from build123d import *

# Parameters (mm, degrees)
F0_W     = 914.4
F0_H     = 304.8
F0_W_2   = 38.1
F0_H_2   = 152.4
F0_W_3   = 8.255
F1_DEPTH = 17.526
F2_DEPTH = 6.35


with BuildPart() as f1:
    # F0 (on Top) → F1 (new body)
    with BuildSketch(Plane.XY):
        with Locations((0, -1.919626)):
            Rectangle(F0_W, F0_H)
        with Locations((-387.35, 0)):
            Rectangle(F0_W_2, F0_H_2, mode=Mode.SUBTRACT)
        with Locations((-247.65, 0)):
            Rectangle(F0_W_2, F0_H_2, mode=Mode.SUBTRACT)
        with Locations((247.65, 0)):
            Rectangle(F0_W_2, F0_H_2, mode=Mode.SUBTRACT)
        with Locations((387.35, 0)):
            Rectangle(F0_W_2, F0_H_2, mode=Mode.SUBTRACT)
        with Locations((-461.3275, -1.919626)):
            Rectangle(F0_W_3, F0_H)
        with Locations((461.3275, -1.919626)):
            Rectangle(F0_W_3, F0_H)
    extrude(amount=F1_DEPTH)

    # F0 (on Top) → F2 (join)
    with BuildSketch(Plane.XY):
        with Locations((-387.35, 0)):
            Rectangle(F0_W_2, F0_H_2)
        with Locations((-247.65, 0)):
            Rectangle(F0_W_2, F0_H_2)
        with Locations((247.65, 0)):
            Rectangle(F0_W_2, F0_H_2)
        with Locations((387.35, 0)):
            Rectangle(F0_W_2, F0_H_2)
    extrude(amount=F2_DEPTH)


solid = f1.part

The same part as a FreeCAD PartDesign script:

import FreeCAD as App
import Part
import Sketcher
Q = App.Units.Quantity


def add_polygon(sketch, points):
    """Adds a closed chain of lines whose ends are joined by coincident constraints."""
    first, n = sketch.GeometryCount, len(points)
    for a, b in zip(points, points[1:] + points[:1]):
        sketch.addGeometry(Part.LineSegment(App.Vector(*a, 0), App.Vector(*b, 0)), False)
    for i in range(n):
        sketch.addConstraint(Sketcher.Constraint("Coincident", first + i, 2, first + (i + 1) % n, 1))

doc = App.newDocument("Part")
body = doc.addObject("PartDesign::Body", "Body")

# Sketch on XY plane
sketch1 = doc.addObject("Sketcher::SketchObject", "Sketch")
body.addObject(sketch1)
sketch1.AttachmentSupport = (doc.XY_Plane, [""])
sketch1.MapMode = "FlatFace"
add_polygon(sketch1, [(-465, 150), (-465, -154), (465, -154), (465, 150)])  # lines 0-3
add_polygon(sketch1, [(-368, -76), (-406, -76), (-406, 76), (-368, 76)])  # lines 4-7
add_polygon(sketch1, [(-229, -76), (-267, -76), (-267, 76), (-229, 76)])  # lines 8-11
add_polygon(sketch1, [(267, -76), (229, -76), (229, 76), (267, 76)])  # lines 12-15
add_polygon(sketch1, [(406, -76), (368, -76), (368, 76), (406, 76)])  # lines 16-19
sketch1.addConstraint(Sketcher.Constraint("Vertical", 0))
sketch1.addConstraint(Sketcher.Constraint("Horizontal", 1))
sketch1.addConstraint(Sketcher.Constraint("Vertical", 2))
sketch1.addConstraint(Sketcher.Constraint("Horizontal", 3))
sketch1.addConstraint(Sketcher.Constraint("Horizontal", 4))
sketch1.addConstraint(Sketcher.Constraint("Vertical", 5))
sketch1.addConstraint(Sketcher.Constraint("Horizontal", 6))
sketch1.addConstraint(Sketcher.Constraint("Vertical", 7))
sketch1.addConstraint(Sketcher.Constraint("Horizontal", 8))
sketch1.addConstraint(Sketcher.Constraint("Vertical", 9))
sketch1.addConstraint(Sketcher.Constraint("Horizontal", 10))
sketch1.addConstraint(Sketcher.Constraint("Vertical", 11))
sketch1.addConstraint(Sketcher.Constraint("Horizontal", 12))
sketch1.addConstraint(Sketcher.Constraint("Vertical", 13))
sketch1.addConstraint(Sketcher.Constraint("Horizontal", 14))
sketch1.addConstraint(Sketcher.Constraint("Vertical", 15))
sketch1.addConstraint(Sketcher.Constraint("Horizontal", 16))
sketch1.addConstraint(Sketcher.Constraint("Vertical", 17))
sketch1.addConstraint(Sketcher.Constraint("Horizontal", 18))
sketch1.addConstraint(Sketcher.Constraint("Vertical", 19))
sketch1.addConstraint(Sketcher.Constraint("Symmetric", 10, 2, 12, 2, -1, 1))
sketch1.addConstraint(Sketcher.Constraint("Symmetric", 8, 2, 14, 2, -1, 1))
sketch1.addConstraint(Sketcher.Constraint("Symmetric", 6, 2, 16, 2, -1, 1))
sketch1.addConstraint(Sketcher.Constraint("Symmetric", 4, 2, 18, 2, -1, 1))
sketch1.addConstraint(Sketcher.Constraint("Horizontal", 7, 2, 8, 2))
sketch1.addConstraint(Sketcher.Constraint("Horizontal", 6, 2, 9, 2))
sketch1.addConstraint(Sketcher.Constraint("Horizontal", 11, 2, 12, 2))
sketch1.addConstraint(Sketcher.Constraint("Equal", 6, 8))
sketch1.addConstraint(Sketcher.Constraint("DistanceY", 0, 2, 0, 1, Q("12 in")))
sketch1.addConstraint(Sketcher.Constraint("DistanceY", 5, 1, 5, 2, Q("6 in")))
sketch1.addConstraint(Sketcher.Constraint("DistanceX", 4, 2, 4, 1, Q("1.5 in")))
sketch1.addConstraint(Sketcher.Constraint("DistanceX", 4, 2, -1, 1, Q("16 in")))
sketch1.addConstraint(Sketcher.Constraint("DistanceX", 10, 2, -1, 1, Q("9 in")))
sketch1.addConstraint(Sketcher.Constraint("DistanceX", 1, 1, 1, 2, Q("36.65 in")))
sketch1.addConstraint(Sketcher.Constraint("DistanceX", 0, 2, -1, 1, Q("18.325 in")))
sketch1.addConstraint(Sketcher.Constraint("DistanceY", 0, 2, -1, 1, 154.319626))
pad1 = doc.addObject("PartDesign::Pad", "Pad")
body.addObject(pad1)
pad1.Profile = sketch1
pad1.Length = Q("0.69 in")

# Sketch on XY plane
sketch2 = doc.addObject("Sketcher::SketchObject", "Sketch001")
body.addObject(sketch2)
sketch2.AttachmentSupport = (doc.XY_Plane, [""])
sketch2.MapMode = "FlatFace"
add_polygon(sketch2, [(-406, 76), (-406, -76), (-368, -76), (-368, 76)])  # lines 0-3
add_polygon(sketch2, [(-267, 76), (-267, -76), (-229, -76), (-229, 76)])  # lines 4-7
add_polygon(sketch2, [(229, 76), (229, -76), (267, -76), (267, 76)])  # lines 8-11
add_polygon(sketch2, [(368, 76), (368, -76), (406, -76), (406, 76)])  # lines 12-15
sketch2.addConstraint(Sketcher.Constraint("Vertical", 0))
sketch2.addConstraint(Sketcher.Constraint("Horizontal", 1))
sketch2.addConstraint(Sketcher.Constraint("Vertical", 2))
sketch2.addConstraint(Sketcher.Constraint("Horizontal", 3))
sketch2.addConstraint(Sketcher.Constraint("Vertical", 4))
sketch2.addConstraint(Sketcher.Constraint("Horizontal", 5))
sketch2.addConstraint(Sketcher.Constraint("Vertical", 6))
sketch2.addConstraint(Sketcher.Constraint("Horizontal", 7))
sketch2.addConstraint(Sketcher.Constraint("Vertical", 8))
sketch2.addConstraint(Sketcher.Constraint("Horizontal", 9))
sketch2.addConstraint(Sketcher.Constraint("Vertical", 10))
sketch2.addConstraint(Sketcher.Constraint("Horizontal", 11))
sketch2.addConstraint(Sketcher.Constraint("Vertical", 12))
sketch2.addConstraint(Sketcher.Constraint("Horizontal", 13))
sketch2.addConstraint(Sketcher.Constraint("Vertical", 14))
sketch2.addConstraint(Sketcher.Constraint("Horizontal", 15))
sketch2.addConstraint(Sketcher.Constraint("Symmetric", 6, 2, 8, 2, -1, 1))
sketch2.addConstraint(Sketcher.Constraint("Symmetric", 4, 2, 10, 2, -1, 1))
sketch2.addConstraint(Sketcher.Constraint("Symmetric", 2, 2, 12, 2, -1, 1))
sketch2.addConstraint(Sketcher.Constraint("Symmetric", 0, 2, 14, 2, -1, 1))
sketch2.addConstraint(Sketcher.Constraint("Horizontal", 1, 2, 4, 2))
sketch2.addConstraint(Sketcher.Constraint("Horizontal", 3, 2, 6, 2))
sketch2.addConstraint(Sketcher.Constraint("Horizontal", 5, 2, 8, 2))
sketch2.addConstraint(Sketcher.Constraint("Equal", 3, 5))
sketch2.addConstraint(Sketcher.Constraint("DistanceY", 0, 2, 0, 1, Q("6 in")))
sketch2.addConstraint(Sketcher.Constraint("DistanceX", 1, 1, 1, 2, Q("1.5 in")))
sketch2.addConstraint(Sketcher.Constraint("DistanceX", 0, 2, -1, 1, Q("16 in")))
sketch2.addConstraint(Sketcher.Constraint("DistanceX", 5, 2, -1, 1, Q("9 in")))
pad2 = doc.addObject("PartDesign::Pad", "Pad001")
body.addObject(pad2)
pad2.Profile = sketch2
pad2.Length = Q("0.25 in")

doc.recompute()
